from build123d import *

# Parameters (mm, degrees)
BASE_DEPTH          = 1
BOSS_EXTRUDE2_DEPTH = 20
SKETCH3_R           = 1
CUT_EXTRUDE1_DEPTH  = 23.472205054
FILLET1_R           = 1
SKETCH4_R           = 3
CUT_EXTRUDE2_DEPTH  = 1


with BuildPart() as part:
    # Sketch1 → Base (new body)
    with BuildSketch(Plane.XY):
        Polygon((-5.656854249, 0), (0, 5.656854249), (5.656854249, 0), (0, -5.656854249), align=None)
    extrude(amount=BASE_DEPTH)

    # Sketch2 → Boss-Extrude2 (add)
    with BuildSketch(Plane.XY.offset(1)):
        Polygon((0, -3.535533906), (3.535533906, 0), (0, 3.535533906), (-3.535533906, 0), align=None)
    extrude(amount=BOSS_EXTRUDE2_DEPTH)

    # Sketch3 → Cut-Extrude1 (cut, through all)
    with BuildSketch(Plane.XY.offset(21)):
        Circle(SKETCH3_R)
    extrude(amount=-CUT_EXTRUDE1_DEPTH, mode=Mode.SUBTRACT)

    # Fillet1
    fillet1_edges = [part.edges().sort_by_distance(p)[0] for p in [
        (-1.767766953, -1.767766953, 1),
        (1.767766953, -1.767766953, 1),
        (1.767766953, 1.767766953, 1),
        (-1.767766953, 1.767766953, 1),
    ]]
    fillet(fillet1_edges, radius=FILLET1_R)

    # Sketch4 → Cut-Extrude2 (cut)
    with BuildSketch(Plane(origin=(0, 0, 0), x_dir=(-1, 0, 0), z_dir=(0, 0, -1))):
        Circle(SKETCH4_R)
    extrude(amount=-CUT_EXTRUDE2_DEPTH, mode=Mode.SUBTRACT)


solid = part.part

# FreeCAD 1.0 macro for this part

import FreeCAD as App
import Part
import Sketcher
from FreeCAD import Vector


def edges_at(feature, points):
    """Names of the edges that pass closest to the given points."""
    edges = feature.Shape.Edges
    near = lambda p: min(range(len(edges)), key=lambda i: edges[i].distToShape(Part.Vertex(*p))[0])
    return sorted({f"Edge{near(p) + 1}" for p in points})


def add_polygon(sketch, points):
    """Adds a closed chain of lines whose ends are joined by coincident constraints."""
    first, n = sketch.GeometryCount, len(points)
    for a, b in zip(points, points[1:] + points[:1]):
        sketch.addGeometry(Part.LineSegment(App.Vector(*a, 0), App.Vector(*b, 0)), False)
    for i in range(n):
        sketch.addConstraint(Sketcher.Constraint("Coincident", first + i, 2, first + (i + 1) % n, 1))

doc = App.newDocument("Part")
params = doc.addObject("Spreadsheet::Sheet", "Params")
for row, (alias, value) in enumerate([
    ("sketch1_length", "8 mm"),
    ("pad1_length", "1 mm"),
    ("sketch2_length", "5 mm"),
    ("pad2_length", "20 mm"),
    ("sketch3_diameter", "2 mm"),
    ("fillet_radius", "1 mm"),
    ("sketch4_diameter", "6 mm"),
    ("pocket2_length", "1 mm"),
], start=1):
    params.set(f"A{row}", alias)
    params.set(f"B{row}", "=" + value)
    params.setAlias(f"B{row}", alias)

body = doc.addObject("PartDesign::Body", "Body")

# Sketch on XY plane
sketch1 = doc.addObject("Sketcher::SketchObject", "Sketch")
body.addObject(sketch1)
sketch1.AttachmentSupport = (doc.XY_Plane, [""])
sketch1.MapMode = "FlatFace"
add_polygon(sketch1, [(0, 6), (-6, 0), (0, -6), (6, 0)])  # lines 0-3
sketch1.addConstraint([
    Sketcher.Constraint("Symmetric", 0, 2, 2, 2, -1, 1),
    Sketcher.Constraint("Symmetric", 1, 2, 3, 2, -1, 1),
    Sketcher.Constraint("PointOnObject", 0, 2, -1),
    Sketcher.Constraint("PointOnObject", 1, 2, -2),
    Sketcher.Constraint("Perpendicular", 0, 1),
    Sketcher.Constraint("Distance", 0, 8.0),
])
sketch1.setExpression("Constraints[9]", "Params.sketch1_length")
pad1 = doc.addObject("PartDesign::Pad", "Pad")
body.addObject(pad1)
pad1.Profile = sketch1
pad1.setExpression("Length", "Params.pad1_length")

# Sketch on XY plane
sketch2 = doc.addObject("Sketcher::SketchObject", "Sketch001")
body.addObject(sketch2)
sketch2.AttachmentSupport = (doc.XY_Plane, [""])
sketch2.MapMode = "FlatFace"
sketch2.AttachmentOffset = App.Placement(Vector(0, 0, 1), App.Rotation())
add_polygon(sketch2, [(0, -4), (4, 0), (0, 4), (-4, 0)])  # lines 0-3
sketch2.addConstraint([
    Sketcher.Constraint("Symmetric", 0, 2, 2, 2, -1, 1),
    Sketcher.Constraint("Symmetric", 1, 2, 3, 2, -1, 1),
    Sketcher.Constraint("PointOnObject", 0, 2, -1),
    Sketcher.Constraint("PointOnObject", 1, 2, -2),
    Sketcher.Constraint("Perpendicular", 0, 1),
    Sketcher.Constraint("Distance", 0, 5.0),
])
sketch2.setExpression("Constraints[9]", "Params.sketch2_length")
pad2 = doc.addObject("PartDesign::Pad", "Pad001")
body.addObject(pad2)
pad2.Profile = sketch2
pad2.setExpression("Length", "Params.pad2_length")

# Sketch on XY plane
sketch3 = doc.addObject("Sketcher::SketchObject", "Sketch002")
body.addObject(sketch3)
sketch3.AttachmentSupport = (doc.XY_Plane, [""])
sketch3.MapMode = "FlatFace"
sketch3.AttachmentOffset = App.Placement(Vector(0, 0, 21), App.Rotation())
sketch3.addGeometry(Part.Circle(Vector(0, 0, 0), Vector(0, 0, 1), 1), False)
sketch3.addConstraint([
    Sketcher.Constraint("Coincident", 0, 3, -1, 1),
    Sketcher.Constraint("Diameter", 0, 2.0),
])
sketch3.setExpression("Constraints[1]", "Params.sketch3_diameter")
pocket1 = doc.addObject("PartDesign::Pocket", "Pocket")
body.addObject(pocket1)
pocket1.Profile = sketch3
pocket1.Type = "ThroughAll"
doc.recompute()

fillet = doc.addObject("PartDesign::Fillet", "Fillet")
body.addObject(fillet)
fillet.Base = (pocket1, edges_at(pocket1, [
    (-1.768, -1.768, 1),
    (1.768, -1.768, 1),
    (1.768, 1.768, 1),
    (-1.768, 1.768, 1),
]))
fillet.setExpression("Radius", "Params.fillet_radius")

# Sketch on XY plane
sketch4 = doc.addObject("Sketcher::SketchObject", "Sketch003")
body.addObject(sketch4)
sketch4.AttachmentSupport = (doc.XY_Plane, [""])
sketch4.MapMode = "FlatFace"
sketch4.addGeometry(Part.Circle(Vector(0, 0, 0), Vector(0, 0, 1), 3), False)
sketch4.addConstraint([
    Sketcher.Constraint("Coincident", 0, 3, -1, 1),
    Sketcher.Constraint("Diameter", 0, 6.0),
])
sketch4.setExpression("Constraints[1]", "Params.sketch4_diameter")
pocket2 = doc.addObject("PartDesign::Pocket", "Pocket001")
body.addObject(pocket2)
pocket2.Profile = sketch4
pocket2.setExpression("Length", "Params.pocket2_length")
pocket2.Reversed = True

doc.recompute()
